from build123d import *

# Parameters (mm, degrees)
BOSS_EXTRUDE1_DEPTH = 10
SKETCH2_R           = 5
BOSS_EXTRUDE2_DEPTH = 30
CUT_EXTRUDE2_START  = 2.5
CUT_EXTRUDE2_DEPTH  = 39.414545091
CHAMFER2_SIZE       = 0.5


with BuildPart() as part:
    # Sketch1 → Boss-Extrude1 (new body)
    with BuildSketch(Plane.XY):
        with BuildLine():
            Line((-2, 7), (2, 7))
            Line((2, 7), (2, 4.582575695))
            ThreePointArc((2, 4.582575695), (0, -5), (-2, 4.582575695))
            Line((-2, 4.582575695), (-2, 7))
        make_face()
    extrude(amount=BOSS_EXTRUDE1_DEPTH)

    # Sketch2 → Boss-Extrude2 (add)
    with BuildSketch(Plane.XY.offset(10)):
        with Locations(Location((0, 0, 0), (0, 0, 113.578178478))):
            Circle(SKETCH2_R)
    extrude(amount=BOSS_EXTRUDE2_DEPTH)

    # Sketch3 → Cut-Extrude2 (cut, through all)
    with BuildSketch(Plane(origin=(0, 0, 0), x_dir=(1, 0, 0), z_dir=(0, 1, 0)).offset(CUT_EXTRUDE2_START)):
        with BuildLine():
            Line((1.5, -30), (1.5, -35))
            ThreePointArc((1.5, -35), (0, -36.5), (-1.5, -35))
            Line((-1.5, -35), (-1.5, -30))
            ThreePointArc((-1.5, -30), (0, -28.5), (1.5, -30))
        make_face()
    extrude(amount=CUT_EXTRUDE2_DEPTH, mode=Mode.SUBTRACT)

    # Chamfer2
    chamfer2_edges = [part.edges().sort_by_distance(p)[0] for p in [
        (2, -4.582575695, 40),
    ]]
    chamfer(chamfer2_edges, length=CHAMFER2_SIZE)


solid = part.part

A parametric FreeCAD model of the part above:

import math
import FreeCAD as App
import Part
import Sketcher

V = App.Vector


def edges_at(feature, points):
    """Names of the edges that pass closest to the given points."""
    edges = feature.Shape.Edges
    near = lambda p: min(range(len(edges)), key=lambda i: edges[i].distToShape(Part.Vertex(*p))[0])
    return sorted({f"Edge{near(p) + 1}" for p in points})

doc = App.newDocument("Part")
params = doc.addObject("Spreadsheet::Sheet", "Params")
for row, (alias, value) in enumerate([
    ("sketch1_radius", "5 mm"),
    ("sketch1_width", "4 mm"),
    ("pad1_length", "10 mm"),
    ("sketch2_diameter", "10 mm"),
    ("pad2_length", "30 mm"),
    ("sketch3_radius", "1.5 mm"),
    ("sketch3_height", "5 mm"),
    ("chamfer_size", "0.5 mm"),
], start=1):
    params.set(f"A{row}", alias)
    params.set(f"B{row}", "=" + value)
    params.setAlias(f"B{row}", alias)

body = doc.addObject("PartDesign::Body", "Body")

# Sketch on XY plane
sketch1 = body.newObject("Sketcher::SketchObject", "Sketch")
sketch1.AttachmentSupport = (doc.getObject("XY_Plane"), [""])
sketch1.MapMode = "FlatFace"
sketch1.addGeometry(Part.LineSegment(V(2, 7, 0), V(-2, 7, 0)), False)
sketch1.addGeometry(Part.LineSegment(V(-2, 7, 0), V(-2, 4.6, 0)), False)
sketch1.addGeometry(Part.ArcOfCircle(Part.Circle(V(0, 0, 0), V(0, 0, 1), 5), math.radians(114), math.radians(426)), False)
sketch1.addGeometry(Part.LineSegment(V(2, 4.6, 0), V(2, 7, 0)), False)
sketch1.addConstraint(Sketcher.Constraint("Coincident", 0, 2, 1, 1))
sketch1.addConstraint(Sketcher.Constraint("Coincident", 1, 2, 2, 1))
sketch1.addConstraint(Sketcher.Constraint("Coincident", 2, 2, 3, 1))
sketch1.addConstraint(Sketcher.Constraint("Coincident", 3, 2, 0, 1))
sketch1.addConstraint(Sketcher.Constraint("Horizontal", 0))
sketch1.addConstraint(Sketcher.Constraint("Vertical", 1))
sketch1.addConstraint(Sketcher.Constraint("Vertical", 3))
sketch1.addConstraint(Sketcher.Constraint("Coincident", 2, 3, -1, 1))
sketch1.addConstraint(Sketcher.Constraint("Horizontal", 1, 2, 2, 2))
sketch1.addConstraint(Sketcher.Constraint("Radius", 2, 5.0))
sketch1.addConstraint(Sketcher.Constraint("DistanceX", 0, 2, 0, 1, 4.0))
sketch1.addConstraint(Sketcher.Constraint("DistanceY", -1, 1, 0, 2, 7.0))
sketch1.setExpression("Constraints[9]", "Params.sketch1_radius")
sketch1.setExpression("Constraints[10]", "Params.sketch1_width")
pad1 = body.newObject("PartDesign::Pad", "Pad")
pad1.Profile = sketch1
pad1.setExpression("Length", "Params.pad1_length")

# Sketch on XY plane
sketch2 = body.newObject("Sketcher::SketchObject", "Sketch001")
sketch2.AttachmentSupport = (doc.getObject("XY_Plane"), [""])
sketch2.MapMode = "FlatFace"
sketch2.AttachmentOffset = App.Placement(V(0, 0, 10), App.Rotation())
sketch2.addGeometry(Part.Circle(V(0, 0, 0), V(0, 0, 1), 5), False)
sketch2.addConstraint(Sketcher.Constraint("Coincident", 0, 3, -1, 1))
sketch2.addConstraint(Sketcher.Constraint("Diameter", 0, 10.0))
sketch2.setExpression("Constraints[1]", "Params.sketch2_diameter")
pad2 = body.newObject("PartDesign::Pad", "Pad001")
pad2.Profile = sketch2
pad2.setExpression("Length", "Params.pad2_length")

# Sketch on XZ plane
sketch3 = body.newObject("Sketcher::SketchObject", "Sketch002")
sketch3.AttachmentSupport = (doc.getObject("XZ_Plane"), [""])
sketch3.MapMode = "FlatFace"
sketch3.AttachmentOffset = App.Placement(V(0, 0, -2.5), App.Rotation())
sketch3.addGeometry(Part.LineSegment(V(1.5, 35, 0), V(1.5, 30, 0)), False)
sketch3.addGeometry(Part.ArcOfCircle(Part.Circle(V(0, 30, 0), V(0, 0, 1), 1.5), math.radians(180), math.radians(360)), False)
sketch3.addGeometry(Part.LineSegment(V(-1.5, 30, 0), V(-1.5, 35, 0)), False)
sketch3.addGeometry(Part.ArcOfCircle(Part.Circle(V(0, 35, 0), V(0, 0, 1), 1.5), math.radians(0), math.radians(180)), False)
sketch3.addConstraint(Sketcher.Constraint("Tangent", 0, 2, 1, 2))
sketch3.addConstraint(Sketcher.Constraint("Tangent", 1, 1, 2, 1))
sketch3.addConstraint(Sketcher.Constraint("Tangent", 2, 2, 3, 2))
sketch3.addConstraint(Sketcher.Constraint("Tangent", 3, 1, 0, 1))
sketch3.addConstraint(Sketcher.Constraint("Vertical", 0))
sketch3.addConstraint(Sketcher.Constraint("Vertical", 2))
sketch3.addConstraint(Sketcher.Constraint("PointOnObject", 1, 3, -2))
sketch3.addConstraint(Sketcher.Constraint("Radius", 1, 1.5))
sketch3.addConstraint(Sketcher.Constraint("DistanceY", 0, 2, 0, 1, 5.0))
sketch3.addConstraint(Sketcher.Constraint("DistanceY", -1, 1, 1, 3, 30.0))
sketch3.setExpression("Constraints[7]", "Params.sketch3_radius")
sketch3.setExpression("Constraints[8]", "Params.sketch3_height")
pocket1 = body.newObject("PartDesign::Pocket", "Pocket")
pocket1.Profile = sketch3
pocket1.Type = "ThroughAll"
doc.recompute()

chamfer = body.newObject("PartDesign::Chamfer", "Chamfer")
chamfer.Base = (pocket1, edges_at(pocket1, [(2, -4.583, 40)]))
chamfer.setExpression("Size", "Params.chamfer_size")

doc.recompute()
